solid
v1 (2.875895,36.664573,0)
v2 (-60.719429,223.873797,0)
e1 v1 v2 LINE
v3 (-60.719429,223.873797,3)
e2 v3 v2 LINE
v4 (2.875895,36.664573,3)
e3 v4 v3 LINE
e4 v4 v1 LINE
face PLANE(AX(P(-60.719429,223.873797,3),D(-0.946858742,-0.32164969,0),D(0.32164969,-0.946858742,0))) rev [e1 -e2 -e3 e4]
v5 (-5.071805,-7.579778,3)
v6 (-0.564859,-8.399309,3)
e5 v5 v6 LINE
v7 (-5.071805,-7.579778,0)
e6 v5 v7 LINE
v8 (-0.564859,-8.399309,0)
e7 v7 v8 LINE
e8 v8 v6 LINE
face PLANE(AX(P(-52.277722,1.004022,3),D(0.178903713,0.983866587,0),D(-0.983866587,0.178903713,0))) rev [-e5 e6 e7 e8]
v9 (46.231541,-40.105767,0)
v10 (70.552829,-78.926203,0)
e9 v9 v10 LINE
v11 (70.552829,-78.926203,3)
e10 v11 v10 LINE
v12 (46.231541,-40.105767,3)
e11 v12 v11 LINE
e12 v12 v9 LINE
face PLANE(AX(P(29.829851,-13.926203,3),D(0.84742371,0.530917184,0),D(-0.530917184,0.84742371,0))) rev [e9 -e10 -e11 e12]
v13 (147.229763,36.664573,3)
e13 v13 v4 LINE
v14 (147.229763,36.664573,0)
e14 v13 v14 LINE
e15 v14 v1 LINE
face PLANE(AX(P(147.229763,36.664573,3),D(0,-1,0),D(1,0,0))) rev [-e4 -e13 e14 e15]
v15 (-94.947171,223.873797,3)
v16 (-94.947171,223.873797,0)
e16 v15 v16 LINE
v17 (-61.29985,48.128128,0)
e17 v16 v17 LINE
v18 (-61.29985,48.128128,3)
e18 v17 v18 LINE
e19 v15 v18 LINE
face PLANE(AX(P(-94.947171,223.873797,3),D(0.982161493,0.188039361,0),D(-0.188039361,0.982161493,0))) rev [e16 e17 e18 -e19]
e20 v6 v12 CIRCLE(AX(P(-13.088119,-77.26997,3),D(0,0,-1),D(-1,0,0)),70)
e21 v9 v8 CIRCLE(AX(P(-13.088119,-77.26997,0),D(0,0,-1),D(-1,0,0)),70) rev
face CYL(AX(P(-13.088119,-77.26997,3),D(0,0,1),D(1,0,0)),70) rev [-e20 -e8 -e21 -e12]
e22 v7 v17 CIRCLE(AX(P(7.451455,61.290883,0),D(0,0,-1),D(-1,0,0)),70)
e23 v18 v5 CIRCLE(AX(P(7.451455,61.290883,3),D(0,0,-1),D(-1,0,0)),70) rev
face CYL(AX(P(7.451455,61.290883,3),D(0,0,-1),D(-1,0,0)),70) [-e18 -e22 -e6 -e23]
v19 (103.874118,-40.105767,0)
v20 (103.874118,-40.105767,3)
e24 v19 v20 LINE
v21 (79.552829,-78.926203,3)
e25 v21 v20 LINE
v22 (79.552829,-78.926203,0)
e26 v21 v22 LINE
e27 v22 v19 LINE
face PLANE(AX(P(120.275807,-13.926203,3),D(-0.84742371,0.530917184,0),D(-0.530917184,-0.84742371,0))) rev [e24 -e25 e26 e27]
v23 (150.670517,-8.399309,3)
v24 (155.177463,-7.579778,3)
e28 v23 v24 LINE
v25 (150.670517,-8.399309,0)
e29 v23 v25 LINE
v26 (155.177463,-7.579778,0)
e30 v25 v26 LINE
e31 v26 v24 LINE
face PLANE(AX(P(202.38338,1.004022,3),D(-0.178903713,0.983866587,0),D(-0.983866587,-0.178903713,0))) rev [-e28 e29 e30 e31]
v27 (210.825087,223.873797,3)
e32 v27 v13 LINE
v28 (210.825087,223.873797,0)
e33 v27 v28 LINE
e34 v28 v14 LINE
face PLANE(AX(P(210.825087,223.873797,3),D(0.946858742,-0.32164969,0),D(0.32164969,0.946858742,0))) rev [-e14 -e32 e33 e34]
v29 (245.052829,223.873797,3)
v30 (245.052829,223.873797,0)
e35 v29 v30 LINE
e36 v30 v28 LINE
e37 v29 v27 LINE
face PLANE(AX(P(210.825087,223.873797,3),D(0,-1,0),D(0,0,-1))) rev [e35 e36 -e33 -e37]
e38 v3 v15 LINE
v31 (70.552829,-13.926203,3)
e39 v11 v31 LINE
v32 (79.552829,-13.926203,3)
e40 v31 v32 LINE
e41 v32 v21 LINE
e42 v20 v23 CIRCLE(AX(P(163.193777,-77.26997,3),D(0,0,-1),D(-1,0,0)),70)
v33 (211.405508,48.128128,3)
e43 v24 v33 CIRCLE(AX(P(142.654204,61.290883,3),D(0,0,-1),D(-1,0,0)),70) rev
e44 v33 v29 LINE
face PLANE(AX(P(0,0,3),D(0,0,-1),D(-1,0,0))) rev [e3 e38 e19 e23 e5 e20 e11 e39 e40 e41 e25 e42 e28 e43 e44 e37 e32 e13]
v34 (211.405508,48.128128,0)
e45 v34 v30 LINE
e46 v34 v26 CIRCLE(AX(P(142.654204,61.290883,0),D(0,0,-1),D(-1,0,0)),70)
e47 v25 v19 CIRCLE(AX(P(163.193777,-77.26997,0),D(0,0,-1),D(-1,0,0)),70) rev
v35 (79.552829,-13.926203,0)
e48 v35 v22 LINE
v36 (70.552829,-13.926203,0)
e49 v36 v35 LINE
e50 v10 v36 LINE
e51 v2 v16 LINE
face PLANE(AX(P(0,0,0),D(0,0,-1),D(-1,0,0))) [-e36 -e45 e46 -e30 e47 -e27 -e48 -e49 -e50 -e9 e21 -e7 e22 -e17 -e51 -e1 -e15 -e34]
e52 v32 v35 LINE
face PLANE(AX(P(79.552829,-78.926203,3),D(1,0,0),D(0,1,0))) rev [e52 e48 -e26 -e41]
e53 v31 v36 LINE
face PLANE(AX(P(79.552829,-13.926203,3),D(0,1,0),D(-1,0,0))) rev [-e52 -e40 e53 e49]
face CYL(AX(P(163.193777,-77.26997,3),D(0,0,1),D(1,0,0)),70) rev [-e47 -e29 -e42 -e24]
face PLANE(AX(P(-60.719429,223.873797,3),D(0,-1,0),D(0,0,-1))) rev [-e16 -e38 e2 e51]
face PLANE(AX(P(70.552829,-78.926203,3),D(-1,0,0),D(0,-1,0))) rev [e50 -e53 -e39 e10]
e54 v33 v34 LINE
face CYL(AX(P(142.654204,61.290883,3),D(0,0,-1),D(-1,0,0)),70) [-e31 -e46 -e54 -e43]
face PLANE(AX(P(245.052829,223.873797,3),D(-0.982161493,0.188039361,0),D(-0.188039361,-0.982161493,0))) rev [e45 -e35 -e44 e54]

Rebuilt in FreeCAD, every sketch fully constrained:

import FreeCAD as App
import Part
import Sketcher
from FreeCAD import Vector


def edges_at(feature, points):
    """Names of the edges that pass closest to the given points."""
    edges = feature.Shape.Edges
    near = lambda p: min(range(len(edges)), key=lambda i: edges[i].distToShape(Part.Vertex(*p))[0])
    return sorted({f"Edge{near(p) + 1}" for p in points})

doc = App.newDocument("Part")
params = doc.addObject("Spreadsheet::Sheet", "Params")
for row, (alias, value) in enumerate([
    ("sketch1_width", "9 mm"),
    ("sketch1_height", "65 mm"),
    ("pad1_length", "3 mm"),
    ("fillet_radius", "70 mm"),
], start=1):
    params.set(f"A{row}", alias)
    params.set(f"B{row}", "=" + value)
    params.setAlias(f"B{row}", alias)

body = doc.addObject("PartDesign::Body", "Body")

# Sketch on XY plane
sketch1 = body.newObject("Sketcher::SketchObject", "Sketch")
sketch1.AttachmentSupport = (doc.getObject("XY_Plane"), [""])
sketch1.MapMode = "FlatFace"
sketch1.addGeometry(Part.LineSegment(Vector(-52, 1, 0), Vector(30, -14, 0)), False)
sketch1.addGeometry(Part.LineSegment(Vector(30, -14, 0), Vector(71, -79, 0)), False)
sketch1.addGeometry(Part.LineSegment(Vector(71, -79, 0), Vector(71, -14, 0)), False)
sketch1.addGeometry(Part.LineSegment(Vector(71, -14, 0), Vector(80, -14, 0)), False)
sketch1.addGeometry(Part.LineSegment(Vector(80, -14, 0), Vector(80, -79, 0)), False)
sketch1.addGeometry(Part.LineSegment(Vector(80, -79, 0), Vector(120, -14, 0)), False)
sketch1.addGeometry(Part.LineSegment(Vector(120, -14, 0), Vector(202, 1, 0)), False)
sketch1.addGeometry(Part.LineSegment(Vector(202, 1, 0), Vector(245, 224, 0)), False)
sketch1.addGeometry(Part.LineSegment(Vector(245, 224, 0), Vector(211, 224, 0)), False)
sketch1.addGeometry(Part.LineSegment(Vector(211, 224, 0), Vector(147, 37, 0)), False)
sketch1.addGeometry(Part.LineSegment(Vector(147, 37, 0), Vector(3, 37, 0)), False)
sketch1.addGeometry(Part.LineSegment(Vector(3, 37, 0), Vector(-61, 224, 0)), False)
sketch1.addGeometry(Part.LineSegment(Vector(-61, 224, 0), Vector(-95, 224, 0)), False)
sketch1.addGeometry(Part.LineSegment(Vector(-95, 224, 0), Vector(-52, 1, 0)), False)
sketch1.addConstraint(Sketcher.Constraint("Coincident", 0, 2, 1, 1))
sketch1.addConstraint(Sketcher.Constraint("Coincident", 1, 2, 2, 1))
sketch1.addConstraint(Sketcher.Constraint("Coincident", 2, 2, 3, 1))
sketch1.addConstraint(Sketcher.Constraint("Coincident", 3, 2, 4, 1))
sketch1.addConstraint(Sketcher.Constraint("Coincident", 4, 2, 5, 1))
sketch1.addConstraint(Sketcher.Constraint("Coincident", 5, 2, 6, 1))
sketch1.addConstraint(Sketcher.Constraint("Coincident", 6, 2, 7, 1))
sketch1.addConstraint(Sketcher.Constraint("Coincident", 7, 2, 8, 1))
sketch1.addConstraint(Sketcher.Constraint("Coincident", 8, 2, 9, 1))
sketch1.addConstraint(Sketcher.Constraint("Coincident", 9, 2, 10, 1))
sketch1.addConstraint(Sketcher.Constraint("Coincident", 10, 2, 11, 1))
sketch1.addConstraint(Sketcher.Constraint("Coincident", 11, 2, 12, 1))
sketch1.addConstraint(Sketcher.Constraint("Coincident", 12, 2, 13, 1))
sketch1.addConstraint(Sketcher.Constraint("Coincident", 13, 2, 0, 1))
sketch1.addConstraint(Sketcher.Constraint("Vertical", 2))
sketch1.addConstraint(Sketcher.Constraint("Horizontal", 3))
sketch1.addConstraint(Sketcher.Constraint("Vertical", 4))
sketch1.addConstraint(Sketcher.Constraint("Horizontal", 8))
sketch1.addConstraint(Sketcher.Constraint("Horizontal", 10))
sketch1.addConstraint(Sketcher.Constraint("Horizontal", 12))
sketch1.addConstraint(Sketcher.Constraint("Horizontal", 0, 2, 2, 2))
sketch1.addConstraint(Sketcher.Constraint("Horizontal", 1, 2, 4, 2))
sketch1.addConstraint(Sketcher.Constraint("Horizontal", 3, 2, 5, 2))
sketch1.addConstraint(Sketcher.Constraint("Horizontal", 8, 2, 11, 2))
sketch1.addConstraint(Sketcher.Constraint("Horizontal", 6, 2, 13, 2))
sketch1.addConstraint(Sketcher.Constraint("Equal", 8, 12))
sketch1.addConstraint(Sketcher.Constraint("Equal", 1, 5))
sketch1.addConstraint(Sketcher.Constraint("Equal", 0, 6))
sketch1.addConstraint(Sketcher.Constraint("Equal", 9, 11))
sketch1.addConstraint(Sketcher.Constraint("Equal", 7, 13))
sketch1.addConstraint(Sketcher.Constraint("DistanceX", 3, 1, 3, 2, 9.0))
sketch1.addConstraint(Sketcher.Constraint("DistanceY", 2, 1, 2, 2, 65.0))
sketch1.addConstraint(Sketcher.Constraint("DistanceY", 5, 2, 7, 2, 237.8))
sketch1.addConstraint(Sketcher.Constraint("DistanceX", 3, 2, 7, 2, 165.5))
sketch1.addConstraint(Sketcher.Constraint("DistanceX", 8, 2, 8, 1, 34.227742))
sketch1.addConstraint(Sketcher.Constraint("Distance", 0, 83.45397))
sketch1.addConstraint(Sketcher.Constraint("Distance", 1, 76.70307))
sketch1.addConstraint(Sketcher.Constraint("DistanceX", 10, 2, 10, 1, 144.353868))
sketch1.addConstraint(Sketcher.Constraint("DistanceX", -1, 1, 0, 2, 29.829851))
sketch1.addConstraint(Sketcher.Constraint("DistanceX", -1, 1, 6, 2, 202.38338))
sketch1.addConstraint(Sketcher.Constraint("DistanceY", 6, 2, 9, 2, 35.660551))
sketch1.addConstraint(Sketcher.Constraint("DistanceY", 0, 2, -1, 1, 13.926203))
sketch1.setExpression("Constraints[30]", "Params.sketch1_width")
sketch1.setExpression("Constraints[31]", "Params.sketch1_height")
pad1 = body.newObject("PartDesign::Pad", "Pad")
pad1.Profile = sketch1
pad1.setExpression("Length", "Params.pad1_length")
doc.recompute()

fillet = body.newObject("PartDesign::Fillet", "Fillet")
fillet.Base = (pad1, edges_at(pad1, [
    (202.383, 1.004, 1.5),
    (120.276, -13.926, 1.5),
    (29.83, -13.926, 1.5),
    (-52.278, 1.004, 1.5),
]))
fillet.setExpression("Radius", "Params.fillet_radius")

doc.recompute()
